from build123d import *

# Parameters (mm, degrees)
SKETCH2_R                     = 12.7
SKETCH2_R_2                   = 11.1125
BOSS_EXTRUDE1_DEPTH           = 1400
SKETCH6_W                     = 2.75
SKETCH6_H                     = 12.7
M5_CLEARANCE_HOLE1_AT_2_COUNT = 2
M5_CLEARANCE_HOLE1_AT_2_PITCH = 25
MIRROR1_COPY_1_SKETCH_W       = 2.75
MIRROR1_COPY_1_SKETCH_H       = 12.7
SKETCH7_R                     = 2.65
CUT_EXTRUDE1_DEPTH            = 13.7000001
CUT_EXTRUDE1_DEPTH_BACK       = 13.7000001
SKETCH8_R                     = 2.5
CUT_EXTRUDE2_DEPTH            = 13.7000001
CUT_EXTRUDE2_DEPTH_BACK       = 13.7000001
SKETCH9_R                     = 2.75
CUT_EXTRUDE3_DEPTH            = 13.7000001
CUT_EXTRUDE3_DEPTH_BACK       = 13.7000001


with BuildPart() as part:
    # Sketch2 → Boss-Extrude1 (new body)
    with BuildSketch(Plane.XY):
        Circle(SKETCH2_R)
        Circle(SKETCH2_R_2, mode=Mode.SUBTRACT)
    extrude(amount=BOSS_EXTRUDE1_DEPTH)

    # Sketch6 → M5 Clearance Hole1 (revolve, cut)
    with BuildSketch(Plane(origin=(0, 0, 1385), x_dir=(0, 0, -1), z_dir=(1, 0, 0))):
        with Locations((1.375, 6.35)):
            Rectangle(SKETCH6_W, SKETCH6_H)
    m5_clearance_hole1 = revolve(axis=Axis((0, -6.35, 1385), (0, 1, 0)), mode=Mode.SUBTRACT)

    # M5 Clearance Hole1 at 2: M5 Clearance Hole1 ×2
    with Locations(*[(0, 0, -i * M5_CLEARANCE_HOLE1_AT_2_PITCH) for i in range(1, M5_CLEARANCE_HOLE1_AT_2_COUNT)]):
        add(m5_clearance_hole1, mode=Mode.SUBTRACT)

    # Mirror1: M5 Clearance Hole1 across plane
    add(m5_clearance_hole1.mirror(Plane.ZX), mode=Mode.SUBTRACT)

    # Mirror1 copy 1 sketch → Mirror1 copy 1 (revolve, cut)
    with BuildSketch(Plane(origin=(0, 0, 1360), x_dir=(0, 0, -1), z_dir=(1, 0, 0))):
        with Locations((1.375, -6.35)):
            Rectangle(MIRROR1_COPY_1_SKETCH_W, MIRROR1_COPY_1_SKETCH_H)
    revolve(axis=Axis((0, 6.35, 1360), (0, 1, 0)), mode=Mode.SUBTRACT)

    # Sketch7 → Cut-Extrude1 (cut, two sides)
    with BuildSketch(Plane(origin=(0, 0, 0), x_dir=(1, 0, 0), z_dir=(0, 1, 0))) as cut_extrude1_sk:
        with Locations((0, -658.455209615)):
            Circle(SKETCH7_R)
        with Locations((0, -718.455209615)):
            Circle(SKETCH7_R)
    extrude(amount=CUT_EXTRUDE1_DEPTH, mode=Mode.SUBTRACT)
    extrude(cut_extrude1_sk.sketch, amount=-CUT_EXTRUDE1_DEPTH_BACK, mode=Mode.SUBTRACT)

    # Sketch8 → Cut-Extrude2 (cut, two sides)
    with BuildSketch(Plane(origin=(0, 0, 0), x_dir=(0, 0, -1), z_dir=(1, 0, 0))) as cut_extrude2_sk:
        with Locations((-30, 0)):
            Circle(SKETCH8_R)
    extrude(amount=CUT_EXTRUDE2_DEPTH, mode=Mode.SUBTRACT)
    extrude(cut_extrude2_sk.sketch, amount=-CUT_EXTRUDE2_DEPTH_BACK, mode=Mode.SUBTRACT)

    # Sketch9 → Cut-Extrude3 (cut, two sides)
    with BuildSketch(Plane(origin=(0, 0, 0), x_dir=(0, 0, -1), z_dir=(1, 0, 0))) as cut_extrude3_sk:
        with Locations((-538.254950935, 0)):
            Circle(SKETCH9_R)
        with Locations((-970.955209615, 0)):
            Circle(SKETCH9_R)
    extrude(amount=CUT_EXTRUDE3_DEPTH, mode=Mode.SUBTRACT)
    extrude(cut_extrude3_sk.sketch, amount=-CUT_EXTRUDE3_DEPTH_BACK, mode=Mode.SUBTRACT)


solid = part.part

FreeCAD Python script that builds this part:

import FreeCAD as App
import Part
import Sketcher
from FreeCAD import Vector
Q = App.Units.Quantity

doc = App.newDocument("Part")
body = doc.addObject("PartDesign::Body", "Body")

sketch1 = doc.addObject("Sketcher::SketchObject", "Sketch")
body.addObject(sketch1)
sketch1.AttachmentSupport = (doc.XY_Plane, [""])
sketch1.MapMode = "FlatFace"
sketch1.addGeometry([
    Part.Circle(Vector(0, 0, 0), Vector(0, 0, 1), 13),
    Part.Circle(Vector(0, 0, 0), Vector(0, 0, 1), 11),
], False)
sketch1.addConstraint([
    Sketcher.Constraint("Coincident", 0, 3, -1, 1),
    Sketcher.Constraint("Coincident", 1, 3, -1, 1),
    Sketcher.Constraint("Diameter", 0, Q("25.4 mm")),
    Sketcher.Constraint("Diameter", 1, Q("22.225 mm")),
])
pad1 = doc.addObject("PartDesign::Pad", "Pad")
body.addObject(pad1)
pad1.Profile = sketch1
pad1.Length = 1400

sketch2 = doc.addObject("Sketcher::SketchObject", "Sketch001")
body.addObject(sketch2)
sketch2.AttachmentSupport = (doc.YZ_Plane, [""])
sketch2.MapMode = "FlatFace"
sketch2.addGeometry([
    Part.LineSegment(Vector(12.7, 1385, 0), Vector(0, 1385, 0)),
    Part.LineSegment(Vector(0, 1385, 0), Vector(0, 1382.2, 0)),
    Part.LineSegment(Vector(0, 1382.2, 0), Vector(12.7, 1382.2, 0)),
    Part.LineSegment(Vector(12.7, 1382.2, 0), Vector(12.7, 1385, 0)),
], False)
sketch2.addGeometry(Part.LineSegment(Vector(0, 1385, 0), Vector(12.7, 1385, 0)), True)
sketch2.addConstraint([
    Sketcher.Constraint("Coincident", 0, 2, 1, 1),
    Sketcher.Constraint("Coincident", 1, 2, 2, 1),
    Sketcher.Constraint("Coincident", 2, 2, 3, 1),
    Sketcher.Constraint("Coincident", 3, 2, 0, 1),
    Sketcher.Constraint("Horizontal", 0),
    Sketcher.Constraint("Vertical", 1),
    Sketcher.Constraint("Horizontal", 2),
    Sketcher.Constraint("Vertical", 3),
    Sketcher.Constraint("Horizontal", 4),
    Sketcher.Constraint("Coincident", 4, 1, 0, 2),
    Sketcher.Constraint("PointOnObject", 0, 2, -2),
    Sketcher.Constraint("Vertical", 2, 2, 4, 2),
    Sketcher.Constraint("DistanceX", 0, 2, 0, 1, Q("12.7 mm")),
    Sketcher.Constraint("DistanceY", -1, 1, 0, 2, Q("1385 mm")),
    Sketcher.Constraint("DistanceY", 1, 2, 1, 1, Q("2.75 mm")),
])
groove = doc.addObject("PartDesign::Groove", "Groove")
body.addObject(groove)
groove.Profile = sketch2
groove.ReferenceAxis = (sketch2, ["Axis0"])
groove.Angle = 360
doc.recompute()

linearpattern = doc.addObject("PartDesign::LinearPattern", "LinearPattern")
body.addObject(linearpattern)
linearpattern.Originals = [groove]
linearpattern.Direction = (doc.Z_Axis, [""])
linearpattern.Mode = "offset"
linearpattern.Offset = 25
linearpattern.Occurrences = 2
linearpattern.Reversed = True
body.Tip = linearpattern
doc.recompute()

mirrored = doc.addObject("PartDesign::Mirrored", "Mirrored")
body.addObject(mirrored)
mirrored.Originals = [groove]
mirrored.MirrorPlane = (doc.XZ_Plane, [""])
body.Tip = mirrored

sketch3 = doc.addObject("Sketcher::SketchObject", "Sketch002")
body.addObject(sketch3)
sketch3.AttachmentSupport = (doc.YZ_Plane, [""])
sketch3.MapMode = "FlatFace"
sketch3.addGeometry([
    Part.LineSegment(Vector(0, 1360, 0), Vector(-12.7, 1360, 0)),
    Part.LineSegment(Vector(-12.7, 1360, 0), Vector(-12.7, 1357.2, 0)),
    Part.LineSegment(Vector(-12.7, 1357.2, 0), Vector(0, 1357.2, 0)),
    Part.LineSegment(Vector(0, 1357.2, 0), Vector(0, 1360, 0)),
], False)
sketch3.addGeometry(Part.LineSegment(Vector(-12.7, 1360, 0), Vector(0, 1360, 0)), True)
sketch3.addConstraint([
    Sketcher.Constraint("Coincident", 0, 2, 1, 1),
    Sketcher.Constraint("Coincident", 1, 2, 2, 1),
    Sketcher.Constraint("Coincident", 2, 2, 3, 1),
    Sketcher.Constraint("Coincident", 3, 2, 0, 1),
    Sketcher.Constraint("Horizontal", 0),
    Sketcher.Constraint("Vertical", 1),
    Sketcher.Constraint("Horizontal", 2),
    Sketcher.Constraint("Vertical", 3),
    Sketcher.Constraint("Horizontal", 4),
    Sketcher.Constraint("Coincident", 4, 1, 0, 2),
    Sketcher.Constraint("PointOnObject", 2, 2, -2),
    Sketcher.Constraint("PointOnObject", 4, 2, -2),
    Sketcher.Constraint("DistanceX", 0, 2, 0, 1, Q("12.7 mm")),
    Sketcher.Constraint("DistanceY", -1, 1, 0, 2, Q("1360 mm")),
    Sketcher.Constraint("DistanceY", 1, 2, 1, 1, Q("2.75 mm")),
])
groove2 = doc.addObject("PartDesign::Groove", "Groove001")
body.addObject(groove2)
groove2.Profile = sketch3
groove2.ReferenceAxis = (sketch3, ["Axis0"])
groove2.Angle = 360

sketch4 = doc.addObject("Sketcher::SketchObject", "Sketch003")
body.addObject(sketch4)
sketch4.AttachmentSupport = (doc.XZ_Plane, [""])
sketch4.MapMode = "FlatFace"
sketch4.addGeometry([
    Part.Circle(Vector(0, 658.5, 0), Vector(0, 0, 1), 2.6),
    Part.Circle(Vector(0, 718.5, 0), Vector(0, 0, 1), 2.6),
], False)
sketch4.addConstraint([
    Sketcher.Constraint("Equal", 0, 1),
    Sketcher.Constraint("PointOnObject", 0, 3, -2),
    Sketcher.Constraint("PointOnObject", 1, 3, -2),
    Sketcher.Constraint("Diameter", 0, Q("5.3 mm")),
    Sketcher.Constraint("DistanceY", 0, 3, 1, 3, Q("60 mm")),
    Sketcher.Constraint("DistanceY", -1, 1, 0, 3, Q("658.45521 mm")),
])
pocket1 = doc.addObject("PartDesign::Pocket", "Pocket")
body.addObject(pocket1)
pocket1.Profile = sketch4
pocket1.Type = "ThroughAll"
pocket1.Midplane = True

sketch5 = doc.addObject("Sketcher::SketchObject", "Sketch004")
body.addObject(sketch5)
sketch5.AttachmentSupport = (doc.YZ_Plane, [""])
sketch5.MapMode = "FlatFace"
sketch5.addGeometry(Part.Circle(Vector(0, 30, 0), Vector(0, 0, 1), 2.5), False)
sketch5.addConstraint([
    Sketcher.Constraint("PointOnObject", 0, 3, -2),
    Sketcher.Constraint("Diameter", 0, Q("5 mm")),
    Sketcher.Constraint("DistanceY", -1, 1, 0, 3, Q("30 mm")),
])
pocket2 = doc.addObject("PartDesign::Pocket", "Pocket001")
body.addObject(pocket2)
pocket2.Profile = sketch5
pocket2.Type = "ThroughAll"
pocket2.Midplane = True

sketch6 = doc.addObject("Sketcher::SketchObject", "Sketch005")
body.addObject(sketch6)
sketch6.AttachmentSupport = (doc.YZ_Plane, [""])
sketch6.MapMode = "FlatFace"
sketch6.addGeometry([
    Part.Circle(Vector(0, 538.3, 0), Vector(0, 0, 1), 2.8),
    Part.Circle(Vector(0, 971, 0), Vector(0, 0, 1), 2.8),
], False)
sketch6.addConstraint([
    Sketcher.Constraint("Equal", 0, 1),
    Sketcher.Constraint("PointOnObject", 0, 3, -2),
    Sketcher.Constraint("PointOnObject", 1, 3, -2),
    Sketcher.Constraint("Diameter", 0, Q("5.5 mm")),
    Sketcher.Constraint("DistanceY", -1, 1, 0, 3, Q("538.254951 mm")),
    Sketcher.Constraint("DistanceY", -1, 1, 1, 3, Q("970.95521 mm")),
])
pocket3 = doc.addObject("PartDesign::Pocket", "Pocket002")
body.addObject(pocket3)
pocket3.Profile = sketch6
pocket3.Type = "ThroughAll"
pocket3.Midplane = True

doc.recompute()
